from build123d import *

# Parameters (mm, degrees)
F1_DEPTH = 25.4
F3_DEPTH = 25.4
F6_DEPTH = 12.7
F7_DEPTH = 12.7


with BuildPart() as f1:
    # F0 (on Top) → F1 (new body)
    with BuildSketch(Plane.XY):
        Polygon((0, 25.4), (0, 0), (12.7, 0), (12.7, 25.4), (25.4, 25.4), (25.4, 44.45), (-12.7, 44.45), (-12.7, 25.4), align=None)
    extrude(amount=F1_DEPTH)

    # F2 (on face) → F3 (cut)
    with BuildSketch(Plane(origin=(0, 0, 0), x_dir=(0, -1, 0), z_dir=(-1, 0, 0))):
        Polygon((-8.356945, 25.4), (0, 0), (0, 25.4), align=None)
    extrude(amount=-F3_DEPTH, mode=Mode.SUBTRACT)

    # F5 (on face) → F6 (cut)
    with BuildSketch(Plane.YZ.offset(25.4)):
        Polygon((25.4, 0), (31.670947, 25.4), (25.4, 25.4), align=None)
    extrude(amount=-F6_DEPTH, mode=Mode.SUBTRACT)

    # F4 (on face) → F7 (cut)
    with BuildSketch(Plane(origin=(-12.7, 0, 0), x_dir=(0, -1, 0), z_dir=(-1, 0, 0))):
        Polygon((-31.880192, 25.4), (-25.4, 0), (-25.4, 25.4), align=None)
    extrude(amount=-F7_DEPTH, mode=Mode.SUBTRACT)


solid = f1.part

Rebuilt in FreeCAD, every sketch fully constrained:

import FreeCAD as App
import Part
import Sketcher
from FreeCAD import Vector
Q = App.Units.Quantity

doc = App.newDocument("Part")
body = doc.addObject("PartDesign::Body", "Body")

# Sketch on XY plane
sketch1 = body.newObject("Sketcher::SketchObject", "Sketch")
sketch1.AttachmentSupport = (doc.getObject("XY_Plane"), [""])
sketch1.MapMode = "FlatFace"
sketch1.addGeometry([
    Part.LineSegment(Vector(0, 25, 0), Vector(0, 0, 0)),  # 0
    Part.LineSegment(Vector(0, 0, 0), Vector(13, 0, 0)),  # 1
    Part.LineSegment(Vector(13, 0, 0), Vector(13, 25, 0)),  # 2
    Part.LineSegment(Vector(13, 25, 0), Vector(25, 25, 0)),  # 3
    Part.LineSegment(Vector(25, 25, 0), Vector(25, 44, 0)),  # 4
    Part.LineSegment(Vector(25, 44, 0), Vector(-13, 44, 0)),  # 5
    Part.LineSegment(Vector(-13, 44, 0), Vector(-13, 25, 0)),  # 6
    Part.LineSegment(Vector(-13, 25, 0), Vector(0, 25, 0)),  # 7
], False)
sketch1.addConstraint([
    Sketcher.Constraint("Coincident", 0, 2, 1, 1),
    Sketcher.Constraint("Coincident", 1, 2, 2, 1),
    Sketcher.Constraint("Coincident", 2, 2, 3, 1),
    Sketcher.Constraint("Coincident", 3, 2, 4, 1),
    Sketcher.Constraint("Coincident", 4, 2, 5, 1),
    Sketcher.Constraint("Coincident", 5, 2, 6, 1),
    Sketcher.Constraint("Coincident", 6, 2, 7, 1),
    Sketcher.Constraint("Coincident", 7, 2, 0, 1),
    Sketcher.Constraint("Vertical", 0),
    Sketcher.Constraint("Horizontal", 1),
    Sketcher.Constraint("Vertical", 2),
    Sketcher.Constraint("Horizontal", 3),
    Sketcher.Constraint("Vertical", 4),
    Sketcher.Constraint("Horizontal", 5),
    Sketcher.Constraint("Vertical", 6),
    Sketcher.Constraint("Horizontal", 7),
    Sketcher.Constraint("Coincident", 0, 2, -1, 1),
    Sketcher.Constraint("Symmetric", 2, 2, 6, 2, -2),
    Sketcher.Constraint("Equal", 1, 3),
    Sketcher.Constraint("DistanceY", 0, 2, 0, 1, Q("1 in")),
    Sketcher.Constraint("DistanceX", 1, 1, 1, 2, Q("0.5 in")),
    Sketcher.Constraint("DistanceY", 4, 1, 4, 2, Q("0.75 in")),
])
pad1 = body.newObject("PartDesign::Pad", "Pad")
pad1.Profile = sketch1
pad1.Length = Q("1 in")

# Sketch on YZ plane
sketch2 = body.newObject("Sketcher::SketchObject", "Sketch001")
sketch2.AttachmentSupport = (doc.getObject("YZ_Plane"), [""])
sketch2.MapMode = "FlatFace"
sketch2.addGeometry([
    Part.LineSegment(Vector(8, 25, 0), Vector(0, 0, 0)),
    Part.LineSegment(Vector(0, 0, 0), Vector(0, 25, 0)),
    Part.LineSegment(Vector(0, 25, 0), Vector(8, 25, 0)),
], False)
sketch2.addConstraint([
    Sketcher.Constraint("Coincident", 0, 2, 1, 1),
    Sketcher.Constraint("Coincident", 1, 2, 2, 1),
    Sketcher.Constraint("Coincident", 2, 2, 0, 1),
    Sketcher.Constraint("Vertical", 1),
    Sketcher.Constraint("Horizontal", 2),
    Sketcher.Constraint("Coincident", 0, 2, -1, 1),
    Sketcher.Constraint("DistanceY", 1, 1, 1, 2, Q("1 in")),
    Sketcher.Constraint("DistanceX", 2, 1, 2, 2, Q("8.356945 mm")),
])
pocket1 = body.newObject("PartDesign::Pocket", "Pocket")
pocket1.Profile = sketch2
pocket1.Length = Q("1 in")
pocket1.Reversed = True

# Sketch on YZ plane
sketch3 = body.newObject("Sketcher::SketchObject", "Sketch002")
sketch3.AttachmentSupport = (doc.getObject("YZ_Plane"), [""])
sketch3.MapMode = "FlatFace"
sketch3.AttachmentOffset = App.Placement(Vector(0, 0, 1 * 25.4), App.Rotation())
sketch3.addGeometry([
    Part.LineSegment(Vector(25, 0, 0), Vector(32, 25, 0)),
    Part.LineSegment(Vector(32, 25, 0), Vector(25, 25, 0)),
    Part.LineSegment(Vector(25, 25, 0), Vector(25, 0, 0)),
], False)
sketch3.addConstraint([
    Sketcher.Constraint("Coincident", 0, 2, 1, 1),
    Sketcher.Constraint("Coincident", 1, 2, 2, 1),
    Sketcher.Constraint("Coincident", 2, 2, 0, 1),
    Sketcher.Constraint("Horizontal", 1),
    Sketcher.Constraint("Vertical", 2),
    Sketcher.Constraint("PointOnObject", 2, 2, -1),
    Sketcher.Constraint("DistanceY", 2, 2, 2, 1, Q("1 in")),
    Sketcher.Constraint("DistanceX", -1, 1, 1, 2, Q("1 in")),
    Sketcher.Constraint("Distance", 0, Q("26.16266 mm")),
])
pocket2 = body.newObject("PartDesign::Pocket", "Pocket001")
pocket2.Profile = sketch3
pocket2.Length = Q("0.5 in")

# Sketch on YZ plane
sketch4 = body.newObject("Sketcher::SketchObject", "Sketch003")
sketch4.AttachmentSupport = (doc.getObject("YZ_Plane"), [""])
sketch4.MapMode = "FlatFace"
sketch4.AttachmentOffset = App.Placement(Vector(0, 0, -0.5 * 25.4), App.Rotation())
sketch4.addGeometry([
    Part.LineSegment(Vector(32, 25, 0), Vector(25, 0, 0)),
    Part.LineSegment(Vector(25, 0, 0), Vector(25, 25, 0)),
    Part.LineSegment(Vector(25, 25, 0), Vector(32, 25, 0)),
], False)
sketch4.addConstraint([
    Sketcher.Constraint("Coincident", 0, 2, 1, 1),
    Sketcher.Constraint("Coincident", 1, 2, 2, 1),
    Sketcher.Constraint("Coincident", 2, 2, 0, 1),
    Sketcher.Constraint("Vertical", 1),
    Sketcher.Constraint("Horizontal", 2),
    Sketcher.Constraint("PointOnObject", 0, 2, -1),
    Sketcher.Constraint("DistanceY", 1, 1, 1, 2, Q("1 in")),
    Sketcher.Constraint("DistanceX", -1, 1, 0, 2, Q("1 in")),
    Sketcher.Constraint("Distance", 0, Q("26.213601 mm")),
])
pocket3 = body.newObject("PartDesign::Pocket", "Pocket002")
pocket3.Profile = sketch4
pocket3.Length = Q("0.5 in")
pocket3.Reversed = True

doc.recompute()
